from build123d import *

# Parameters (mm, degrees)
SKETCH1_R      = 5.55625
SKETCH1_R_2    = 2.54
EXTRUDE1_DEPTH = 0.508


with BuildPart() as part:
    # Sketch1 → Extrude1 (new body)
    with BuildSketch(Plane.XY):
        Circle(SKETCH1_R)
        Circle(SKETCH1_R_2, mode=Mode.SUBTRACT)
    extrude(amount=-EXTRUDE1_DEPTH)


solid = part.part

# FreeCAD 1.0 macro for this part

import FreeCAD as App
import Part
import Sketcher
Q = App.Units.Quantity

doc = App.newDocument("Part")
body = doc.addObject("PartDesign::Body", "Body")

# Sketch on XY plane
sketch1 = doc.addObject("Sketcher::SketchObject", "Sketch")
body.addObject(sketch1)
sketch1.AttachmentSupport = (doc.XY_Plane, [""])
sketch1.MapMode = "FlatFace"
sketch1.addGeometry(Part.Circle(App.Vector(0, 0, 0), App.Vector(0, 0, 1), 5.55625), False)
sketch1.addGeometry(Part.Circle(App.Vector(0, 0, 0), App.Vector(0, 0, 1), 2.54), False)
sketch1.addConstraint(Sketcher.Constraint("Coincident", 0, 3, -1, 1))
sketch1.addConstraint(Sketcher.Constraint("Coincident", 1, 3, -1, 1))
sketch1.addConstraint(Sketcher.Constraint("Diameter", 1, Q("0.2 in")))
sketch1.addConstraint(Sketcher.Constraint("Diameter", 0, Q("0.4375 in")))
pad1 = doc.addObject("PartDesign::Pad", "Pad")
body.addObject(pad1)
pad1.Profile = sketch1
pad1.Length = Q("0.02 in")
pad1.Reversed = True

doc.recompute()
